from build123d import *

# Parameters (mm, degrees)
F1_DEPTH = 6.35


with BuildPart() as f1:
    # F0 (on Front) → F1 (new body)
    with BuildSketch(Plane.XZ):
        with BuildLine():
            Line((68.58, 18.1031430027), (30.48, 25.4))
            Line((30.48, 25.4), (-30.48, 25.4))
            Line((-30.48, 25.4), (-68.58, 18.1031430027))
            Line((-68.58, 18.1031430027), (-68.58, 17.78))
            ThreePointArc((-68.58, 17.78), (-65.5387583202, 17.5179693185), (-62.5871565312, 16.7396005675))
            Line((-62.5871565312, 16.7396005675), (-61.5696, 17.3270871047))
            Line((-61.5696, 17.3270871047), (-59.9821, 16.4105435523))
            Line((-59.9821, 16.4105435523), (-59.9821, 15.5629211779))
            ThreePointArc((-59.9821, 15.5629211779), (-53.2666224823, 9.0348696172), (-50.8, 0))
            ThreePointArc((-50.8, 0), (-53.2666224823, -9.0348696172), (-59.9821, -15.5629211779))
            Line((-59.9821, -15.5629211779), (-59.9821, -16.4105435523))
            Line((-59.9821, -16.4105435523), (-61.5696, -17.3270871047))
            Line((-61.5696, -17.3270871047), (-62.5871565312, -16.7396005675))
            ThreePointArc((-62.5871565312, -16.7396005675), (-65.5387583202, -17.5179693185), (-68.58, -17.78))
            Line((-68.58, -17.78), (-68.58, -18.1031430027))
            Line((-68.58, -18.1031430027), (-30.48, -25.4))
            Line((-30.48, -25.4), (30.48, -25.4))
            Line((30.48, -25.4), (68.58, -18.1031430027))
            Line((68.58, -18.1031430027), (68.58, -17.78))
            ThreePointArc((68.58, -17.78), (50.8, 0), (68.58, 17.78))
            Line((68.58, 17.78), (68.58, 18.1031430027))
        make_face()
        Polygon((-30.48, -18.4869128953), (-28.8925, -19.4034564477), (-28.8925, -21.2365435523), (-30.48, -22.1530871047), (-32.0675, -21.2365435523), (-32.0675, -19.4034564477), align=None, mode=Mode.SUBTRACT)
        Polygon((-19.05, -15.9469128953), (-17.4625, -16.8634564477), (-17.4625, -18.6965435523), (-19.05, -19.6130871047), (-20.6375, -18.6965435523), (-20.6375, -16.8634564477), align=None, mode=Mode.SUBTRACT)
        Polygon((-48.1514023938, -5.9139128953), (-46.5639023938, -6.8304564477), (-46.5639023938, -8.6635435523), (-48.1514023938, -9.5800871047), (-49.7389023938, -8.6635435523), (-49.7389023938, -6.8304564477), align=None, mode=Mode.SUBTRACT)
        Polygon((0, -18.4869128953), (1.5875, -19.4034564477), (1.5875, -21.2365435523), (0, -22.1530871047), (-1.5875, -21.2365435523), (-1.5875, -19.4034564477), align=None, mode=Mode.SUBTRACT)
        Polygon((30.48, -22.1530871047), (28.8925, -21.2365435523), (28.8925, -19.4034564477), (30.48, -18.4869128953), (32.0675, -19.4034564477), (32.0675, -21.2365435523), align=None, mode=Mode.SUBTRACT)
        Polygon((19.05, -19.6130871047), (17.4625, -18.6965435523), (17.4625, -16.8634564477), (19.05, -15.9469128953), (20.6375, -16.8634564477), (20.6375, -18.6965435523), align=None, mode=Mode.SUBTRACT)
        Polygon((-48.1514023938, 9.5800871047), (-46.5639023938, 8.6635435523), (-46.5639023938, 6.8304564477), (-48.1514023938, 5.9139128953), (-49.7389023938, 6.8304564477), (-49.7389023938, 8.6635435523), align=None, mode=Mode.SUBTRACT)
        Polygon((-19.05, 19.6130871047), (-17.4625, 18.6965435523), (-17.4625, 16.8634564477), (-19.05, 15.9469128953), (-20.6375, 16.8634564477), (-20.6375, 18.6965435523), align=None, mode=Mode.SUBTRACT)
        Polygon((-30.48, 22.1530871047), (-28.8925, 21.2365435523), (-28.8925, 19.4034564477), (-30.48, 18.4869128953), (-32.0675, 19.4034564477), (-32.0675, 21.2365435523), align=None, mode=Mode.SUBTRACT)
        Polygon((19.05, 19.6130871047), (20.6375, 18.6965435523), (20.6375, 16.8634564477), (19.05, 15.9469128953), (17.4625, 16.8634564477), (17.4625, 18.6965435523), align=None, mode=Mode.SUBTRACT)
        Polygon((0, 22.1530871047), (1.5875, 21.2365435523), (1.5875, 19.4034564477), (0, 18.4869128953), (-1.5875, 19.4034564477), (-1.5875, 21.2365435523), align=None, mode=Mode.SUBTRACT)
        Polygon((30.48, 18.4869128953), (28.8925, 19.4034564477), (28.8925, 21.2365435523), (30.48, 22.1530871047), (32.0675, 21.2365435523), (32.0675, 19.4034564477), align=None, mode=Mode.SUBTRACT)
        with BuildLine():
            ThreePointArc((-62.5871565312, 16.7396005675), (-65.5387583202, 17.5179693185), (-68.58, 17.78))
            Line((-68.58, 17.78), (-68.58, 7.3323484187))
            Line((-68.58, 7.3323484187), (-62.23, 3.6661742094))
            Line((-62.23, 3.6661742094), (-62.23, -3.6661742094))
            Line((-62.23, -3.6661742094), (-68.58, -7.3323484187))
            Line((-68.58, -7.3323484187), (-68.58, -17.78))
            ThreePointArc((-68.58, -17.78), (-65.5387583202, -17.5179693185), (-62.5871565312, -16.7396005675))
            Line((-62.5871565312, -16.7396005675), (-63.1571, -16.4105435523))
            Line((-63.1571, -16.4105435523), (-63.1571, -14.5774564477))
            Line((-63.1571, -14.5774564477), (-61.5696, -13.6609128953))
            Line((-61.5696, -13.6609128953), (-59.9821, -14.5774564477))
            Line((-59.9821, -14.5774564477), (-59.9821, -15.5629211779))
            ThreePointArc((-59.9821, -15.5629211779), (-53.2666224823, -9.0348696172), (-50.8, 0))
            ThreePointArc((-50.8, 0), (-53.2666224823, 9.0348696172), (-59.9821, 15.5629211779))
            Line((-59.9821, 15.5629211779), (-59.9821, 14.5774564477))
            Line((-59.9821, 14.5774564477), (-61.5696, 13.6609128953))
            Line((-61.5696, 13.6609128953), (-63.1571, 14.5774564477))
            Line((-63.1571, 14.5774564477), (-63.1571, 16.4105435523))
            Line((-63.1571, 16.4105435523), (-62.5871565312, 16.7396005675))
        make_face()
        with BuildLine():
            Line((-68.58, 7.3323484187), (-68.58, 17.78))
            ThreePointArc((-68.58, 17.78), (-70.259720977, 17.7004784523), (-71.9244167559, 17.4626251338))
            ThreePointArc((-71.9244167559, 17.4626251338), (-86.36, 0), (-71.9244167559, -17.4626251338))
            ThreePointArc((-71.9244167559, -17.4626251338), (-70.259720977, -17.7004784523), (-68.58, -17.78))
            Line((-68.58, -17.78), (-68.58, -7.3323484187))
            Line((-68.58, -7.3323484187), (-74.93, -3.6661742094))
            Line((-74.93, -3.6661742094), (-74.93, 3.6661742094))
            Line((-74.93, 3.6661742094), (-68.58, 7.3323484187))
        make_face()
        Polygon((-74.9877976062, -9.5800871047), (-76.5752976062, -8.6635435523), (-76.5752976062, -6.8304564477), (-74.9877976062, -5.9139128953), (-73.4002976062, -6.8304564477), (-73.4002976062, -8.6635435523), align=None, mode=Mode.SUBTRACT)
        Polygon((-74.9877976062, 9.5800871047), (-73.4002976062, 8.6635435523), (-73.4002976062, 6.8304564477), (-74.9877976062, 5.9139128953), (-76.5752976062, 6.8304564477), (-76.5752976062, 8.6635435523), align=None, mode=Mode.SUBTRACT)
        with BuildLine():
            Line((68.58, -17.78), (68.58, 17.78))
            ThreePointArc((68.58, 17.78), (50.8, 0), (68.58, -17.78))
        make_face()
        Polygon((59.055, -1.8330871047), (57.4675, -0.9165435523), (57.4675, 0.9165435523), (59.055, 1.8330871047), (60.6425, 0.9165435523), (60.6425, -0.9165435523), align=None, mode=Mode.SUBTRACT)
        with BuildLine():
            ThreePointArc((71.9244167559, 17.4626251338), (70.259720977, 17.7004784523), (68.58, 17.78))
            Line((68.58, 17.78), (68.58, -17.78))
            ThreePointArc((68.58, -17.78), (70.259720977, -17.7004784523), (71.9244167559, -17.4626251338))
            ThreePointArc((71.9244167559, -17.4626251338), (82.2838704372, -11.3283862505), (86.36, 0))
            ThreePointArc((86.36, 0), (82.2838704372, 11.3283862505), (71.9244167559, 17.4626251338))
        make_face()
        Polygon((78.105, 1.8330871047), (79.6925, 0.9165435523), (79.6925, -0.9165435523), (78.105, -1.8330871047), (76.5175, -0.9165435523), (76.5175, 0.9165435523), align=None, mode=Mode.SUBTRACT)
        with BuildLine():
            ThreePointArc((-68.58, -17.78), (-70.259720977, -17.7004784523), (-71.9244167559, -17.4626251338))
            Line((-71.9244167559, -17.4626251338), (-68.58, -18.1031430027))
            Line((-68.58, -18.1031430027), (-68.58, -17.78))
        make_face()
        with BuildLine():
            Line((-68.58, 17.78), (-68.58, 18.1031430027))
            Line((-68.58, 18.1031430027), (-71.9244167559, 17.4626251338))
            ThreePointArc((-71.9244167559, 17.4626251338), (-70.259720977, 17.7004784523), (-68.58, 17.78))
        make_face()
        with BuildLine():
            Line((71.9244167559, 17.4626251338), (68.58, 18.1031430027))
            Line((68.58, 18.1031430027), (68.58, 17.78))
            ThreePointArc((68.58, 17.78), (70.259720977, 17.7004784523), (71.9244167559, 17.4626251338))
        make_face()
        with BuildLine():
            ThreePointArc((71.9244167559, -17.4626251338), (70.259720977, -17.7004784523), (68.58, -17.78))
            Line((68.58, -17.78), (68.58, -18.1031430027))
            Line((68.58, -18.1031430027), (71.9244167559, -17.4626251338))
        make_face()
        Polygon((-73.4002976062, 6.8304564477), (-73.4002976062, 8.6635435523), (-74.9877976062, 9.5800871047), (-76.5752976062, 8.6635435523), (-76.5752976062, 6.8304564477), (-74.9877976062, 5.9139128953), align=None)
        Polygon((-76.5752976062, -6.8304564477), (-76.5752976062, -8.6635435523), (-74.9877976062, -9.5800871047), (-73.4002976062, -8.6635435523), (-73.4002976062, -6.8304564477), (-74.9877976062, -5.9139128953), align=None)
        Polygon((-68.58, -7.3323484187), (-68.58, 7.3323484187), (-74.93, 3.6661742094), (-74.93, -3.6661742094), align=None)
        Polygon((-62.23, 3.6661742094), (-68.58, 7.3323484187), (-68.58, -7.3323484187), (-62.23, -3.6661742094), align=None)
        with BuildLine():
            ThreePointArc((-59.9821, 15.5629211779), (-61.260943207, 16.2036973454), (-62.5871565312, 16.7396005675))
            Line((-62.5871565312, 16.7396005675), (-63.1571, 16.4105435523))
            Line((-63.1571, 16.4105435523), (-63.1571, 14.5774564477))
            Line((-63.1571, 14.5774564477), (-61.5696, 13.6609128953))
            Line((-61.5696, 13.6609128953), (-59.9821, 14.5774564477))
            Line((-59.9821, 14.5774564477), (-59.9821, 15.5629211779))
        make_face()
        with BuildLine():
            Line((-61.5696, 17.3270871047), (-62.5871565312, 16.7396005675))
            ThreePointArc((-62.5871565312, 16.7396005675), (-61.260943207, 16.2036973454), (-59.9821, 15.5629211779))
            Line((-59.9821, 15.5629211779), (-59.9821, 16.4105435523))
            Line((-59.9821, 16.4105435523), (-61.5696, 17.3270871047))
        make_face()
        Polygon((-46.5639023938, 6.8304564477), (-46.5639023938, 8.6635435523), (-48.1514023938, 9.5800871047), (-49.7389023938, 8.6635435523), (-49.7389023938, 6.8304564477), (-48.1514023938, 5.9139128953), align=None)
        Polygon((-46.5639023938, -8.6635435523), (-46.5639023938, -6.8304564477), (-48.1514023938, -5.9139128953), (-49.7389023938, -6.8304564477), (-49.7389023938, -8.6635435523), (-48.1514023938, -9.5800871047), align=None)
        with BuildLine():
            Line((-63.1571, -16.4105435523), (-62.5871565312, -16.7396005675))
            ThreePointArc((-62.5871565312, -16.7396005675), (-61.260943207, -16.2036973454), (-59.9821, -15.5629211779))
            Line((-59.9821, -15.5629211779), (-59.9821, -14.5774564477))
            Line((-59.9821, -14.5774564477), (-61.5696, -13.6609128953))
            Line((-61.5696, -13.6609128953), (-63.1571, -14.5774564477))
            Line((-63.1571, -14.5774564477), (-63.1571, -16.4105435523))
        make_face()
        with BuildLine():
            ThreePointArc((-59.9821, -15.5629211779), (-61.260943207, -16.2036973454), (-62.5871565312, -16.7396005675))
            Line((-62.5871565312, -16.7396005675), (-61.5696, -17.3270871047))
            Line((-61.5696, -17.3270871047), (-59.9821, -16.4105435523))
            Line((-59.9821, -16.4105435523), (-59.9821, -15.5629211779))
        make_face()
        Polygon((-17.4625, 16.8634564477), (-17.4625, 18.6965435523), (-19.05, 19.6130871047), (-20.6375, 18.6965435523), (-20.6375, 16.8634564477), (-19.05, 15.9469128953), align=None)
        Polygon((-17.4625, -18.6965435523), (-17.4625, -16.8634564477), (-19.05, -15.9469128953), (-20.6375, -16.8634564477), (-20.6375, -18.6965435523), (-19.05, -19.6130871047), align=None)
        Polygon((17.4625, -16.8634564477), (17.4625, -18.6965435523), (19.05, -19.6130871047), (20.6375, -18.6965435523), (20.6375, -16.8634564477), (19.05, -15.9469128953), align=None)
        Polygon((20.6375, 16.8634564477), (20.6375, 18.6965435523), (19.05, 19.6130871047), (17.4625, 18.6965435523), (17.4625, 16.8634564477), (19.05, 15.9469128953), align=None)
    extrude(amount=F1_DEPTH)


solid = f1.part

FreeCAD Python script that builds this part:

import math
import FreeCAD as App
import Part
import Sketcher
from FreeCAD import Vector
Q = App.Units.Quantity

doc = App.newDocument("Part")
body = doc.addObject("PartDesign::Body", "Body")

sketch1 = body.newObject("Sketcher::SketchObject", "Sketch")
sketch1.AttachmentSupport = (doc.getObject("XZ_Plane"), [""])
sketch1.MapMode = "FlatFace"
sketch1.addGeometry([
    Part.LineSegment(Vector(68.58, 18.103143, 0), Vector(30.48, 25.4, 0)),
    Part.LineSegment(Vector(30.48, 25.4, 0), Vector(-30.48, 25.4, 0)),
    Part.LineSegment(Vector(-30.48, 25.4, 0), Vector(-68.58, 18.103143, 0)),
    Part.LineSegment(Vector(-68.58, 18.103143, 0), Vector(-71.924417, 17.462625, 0)),
    Part.ArcOfCircle(Part.Circle(Vector(-68.58, 0, 0), Vector(0, 0, 1), 17.78), math.radians(100.841919), math.radians(259.158081)),
    Part.LineSegment(Vector(-71.924417, -17.462625, 0), Vector(-68.58, -18.103143, 0)),
    Part.LineSegment(Vector(-68.58, -18.103143, 0), Vector(-30.48, -25.4, 0)),
    Part.LineSegment(Vector(-30.48, -25.4, 0), Vector(30.48, -25.4, 0)),
    Part.LineSegment(Vector(30.48, -25.4, 0), Vector(68.58, -18.103143, 0)),
    Part.LineSegment(Vector(68.58, -18.103143, 0), Vector(71.924417, -17.462625, 0)),
    Part.ArcOfCircle(Part.Circle(Vector(68.58, 0, 0), Vector(0, 0, 1), 17.78), math.radians(-79.158081), math.radians(0)),
    Part.ArcOfCircle(Part.Circle(Vector(68.58, 0, 0), Vector(0, 0, 1), 17.78), math.radians(0), math.radians(79.158081)),
    Part.LineSegment(Vector(71.924417, 17.462625, 0), Vector(68.58, 18.103143, 0)),
    Part.LineSegment(Vector(-32.0675, -19.403456, 0), Vector(-30.48, -18.486913, 0)),
    Part.LineSegment(Vector(-30.48, -18.486913, 0), Vector(-28.8925, -19.403456, 0)),
    Part.LineSegment(Vector(-28.8925, -19.403456, 0), Vector(-28.8925, -21.236544, 0)),
    Part.LineSegment(Vector(-28.8925, -21.236544, 0), Vector(-30.48, -22.153087, 0)),
    Part.LineSegment(Vector(-30.48, -22.153087, 0), Vector(-32.0675, -21.236544, 0)),
    Part.LineSegment(Vector(-32.0675, -21.236544, 0), Vector(-32.0675, -19.403456, 0)),
    Part.LineSegment(Vector(-1.5875, -19.403456, 0), Vector(0, -18.486913, 0)),
    Part.LineSegment(Vector(0, -18.486913, 0), Vector(1.5875, -19.403456, 0)),
    Part.LineSegment(Vector(1.5875, -19.403456, 0), Vector(1.5875, -21.236544, 0)),
    Part.LineSegment(Vector(1.5875, -21.236544, 0), Vector(0, -22.153087, 0)),
    Part.LineSegment(Vector(0, -22.153087, 0), Vector(-1.5875, -21.236544, 0)),
    Part.LineSegment(Vector(-1.5875, -21.236544, 0), Vector(-1.5875, -19.403456, 0)),
    Part.LineSegment(Vector(32.0675, -21.236544, 0), Vector(30.48, -22.153087, 0)),
    Part.LineSegment(Vector(30.48, -22.153087, 0), Vector(28.8925, -21.236544, 0)),
    Part.LineSegment(Vector(28.8925, -21.236544, 0), Vector(28.8925, -19.403456, 0)),
    Part.LineSegment(Vector(28.8925, -19.403456, 0), Vector(30.48, -18.486913, 0)),
    Part.LineSegment(Vector(30.48, -18.486913, 0), Vector(32.0675, -19.403456, 0)),
    Part.LineSegment(Vector(32.0675, -19.403456, 0), Vector(32.0675, -21.236544, 0)),
    Part.LineSegment(Vector(-32.0675, 21.236544, 0), Vector(-30.48, 22.153087, 0)),
    Part.LineSegment(Vector(-30.48, 22.153087, 0), Vector(-28.8925, 21.236544, 0)),
    Part.LineSegment(Vector(-28.8925, 21.236544, 0), Vector(-28.8925, 19.403456, 0)),
    Part.LineSegment(Vector(-28.8925, 19.403456, 0), Vector(-30.48, 18.486913, 0)),
    Part.LineSegment(Vector(-30.48, 18.486913, 0), Vector(-32.0675, 19.403456, 0)),
    Part.LineSegment(Vector(-32.0675, 19.403456, 0), Vector(-32.0675, 21.236544, 0)),
    Part.LineSegment(Vector(-1.5875, 21.236544, 0), Vector(0, 22.153087, 0)),
    Part.LineSegment(Vector(0, 22.153087, 0), Vector(1.5875, 21.236544, 0)),
    Part.LineSegment(Vector(1.5875, 21.236544, 0), Vector(1.5875, 19.403456, 0)),
    Part.LineSegment(Vector(1.5875, 19.403456, 0), Vector(0, 18.486913, 0)),
    Part.LineSegment(Vector(0, 18.486913, 0), Vector(-1.5875, 19.403456, 0)),
    Part.LineSegment(Vector(-1.5875, 19.403456, 0), Vector(-1.5875, 21.236544, 0)),
    Part.LineSegment(Vector(60.6425, -0.916544, 0), Vector(59.055, -1.833087, 0)),
    Part.LineSegment(Vector(59.055, -1.833087, 0), Vector(57.4675, -0.916544, 0)),
    Part.LineSegment(Vector(57.4675, -0.916544, 0), Vector(57.4675, 0.916544, 0)),
    Part.LineSegment(Vector(57.4675, 0.916544, 0), Vector(59.055, 1.833087, 0)),
    Part.LineSegment(Vector(59.055, 1.833087, 0), Vector(60.6425, 0.916544, 0)),
    Part.LineSegment(Vector(60.6425, 0.916544, 0), Vector(60.6425, -0.916544, 0)),
    Part.LineSegment(Vector(76.5175, 0.916544, 0), Vector(78.105, 1.833087, 0)),
    Part.LineSegment(Vector(78.105, 1.833087, 0), Vector(79.6925, 0.916544, 0)),
    Part.LineSegment(Vector(79.6925, 0.916544, 0), Vector(79.6925, -0.916544, 0)),
    Part.LineSegment(Vector(79.6925, -0.916544, 0), Vector(78.105, -1.833087, 0)),
    Part.LineSegment(Vector(78.105, -1.833087, 0), Vector(76.5175, -0.916544, 0)),
    Part.LineSegment(Vector(76.5175, -0.916544, 0), Vector(76.5175, 0.916544, 0)),
    Part.LineSegment(Vector(32.0675, 19.403456, 0), Vector(30.48, 18.486913, 0)),
    Part.LineSegment(Vector(30.48, 18.486913, 0), Vector(28.8925, 19.403456, 0)),
    Part.LineSegment(Vector(28.8925, 19.403456, 0), Vector(28.8925, 21.236544, 0)),
    Part.LineSegment(Vector(28.8925, 21.236544, 0), Vector(30.48, 22.153087, 0)),
    Part.LineSegment(Vector(30.48, 22.153087, 0), Vector(32.0675, 21.236544, 0)),
    Part.LineSegment(Vector(32.0675, 21.236544, 0), Vector(32.0675, 19.403456, 0)),
], False)
sketch1.addConstraint([
    Sketcher.Constraint("Coincident", 0, 2, 1, 1),
    Sketcher.Constraint("Coincident", 1, 2, 2, 1),
    Sketcher.Constraint("Coincident", 2, 2, 3, 1),
    Sketcher.Constraint("Tangent", 3, 2, 4, 1),
    Sketcher.Constraint("Tangent", 4, 2, 5, 1),
    Sketcher.Constraint("Coincident", 5, 2, 6, 1),
    Sketcher.Constraint("Coincident", 6, 2, 7, 1),
    Sketcher.Constraint("Coincident", 7, 2, 8, 1),
    Sketcher.Constraint("Coincident", 8, 2, 9, 1),
    Sketcher.Constraint("Tangent", 9, 2, 10, 1),
    Sketcher.Constraint("Tangent", 10, 2, 11, 1),
    Sketcher.Constraint("Tangent", 11, 2, 12, 1),
    Sketcher.Constraint("Coincident", 12, 2, 0, 1),
    Sketcher.Constraint("Coincident", 13, 2, 14, 1),
    Sketcher.Constraint("Coincident", 14, 2, 15, 1),
    Sketcher.Constraint("Coincident", 15, 2, 16, 1),
    Sketcher.Constraint("Coincident", 16, 2, 17, 1),
    Sketcher.Constraint("Coincident", 17, 2, 18, 1),
    Sketcher.Constraint("Coincident", 18, 2, 13, 1),
    Sketcher.Constraint("Coincident", 19, 2, 20, 1),
    Sketcher.Constraint("Coincident", 20, 2, 21, 1),
    Sketcher.Constraint("Coincident", 21, 2, 22, 1),
    Sketcher.Constraint("Coincident", 22, 2, 23, 1),
    Sketcher.Constraint("Coincident", 23, 2, 24, 1),
    Sketcher.Constraint("Coincident", 24, 2, 19, 1),
    Sketcher.Constraint("Coincident", 25, 2, 26, 1),
    Sketcher.Constraint("Coincident", 26, 2, 27, 1),
    Sketcher.Constraint("Coincident", 27, 2, 28, 1),
    Sketcher.Constraint("Coincident", 28, 2, 29, 1),
    Sketcher.Constraint("Coincident", 29, 2, 30, 1),
    Sketcher.Constraint("Coincident", 30, 2, 25, 1),
    Sketcher.Constraint("Coincident", 31, 2, 32, 1),
    Sketcher.Constraint("Coincident", 32, 2, 33, 1),
    Sketcher.Constraint("Coincident", 33, 2, 34, 1),
    Sketcher.Constraint("Coincident", 34, 2, 35, 1),
    Sketcher.Constraint("Coincident", 35, 2, 36, 1),
    Sketcher.Constraint("Coincident", 36, 2, 31, 1),
    Sketcher.Constraint("Coincident", 37, 2, 38, 1),
    Sketcher.Constraint("Coincident", 38, 2, 39, 1),
    Sketcher.Constraint("Coincident", 39, 2, 40, 1),
    Sketcher.Constraint("Coincident", 40, 2, 41, 1),
    Sketcher.Constraint("Coincident", 41, 2, 42, 1),
    Sketcher.Constraint("Coincident", 42, 2, 37, 1),
    Sketcher.Constraint("Coincident", 43, 2, 44, 1),
    Sketcher.Constraint("Coincident", 44, 2, 45, 1),
    Sketcher.Constraint("Coincident", 45, 2, 46, 1),
    Sketcher.Constraint("Coincident", 46, 2, 47, 1),
    Sketcher.Constraint("Coincident", 47, 2, 48, 1),
    Sketcher.Constraint("Coincident", 48, 2, 43, 1),
    Sketcher.Constraint("Coincident", 49, 2, 50, 1),
    Sketcher.Constraint("Coincident", 50, 2, 51, 1),
    Sketcher.Constraint("Coincident", 51, 2, 52, 1),
    Sketcher.Constraint("Coincident", 52, 2, 53, 1),
    Sketcher.Constraint("Coincident", 53, 2, 54, 1),
    Sketcher.Constraint("Coincident", 54, 2, 49, 1),
    Sketcher.Constraint("Coincident", 55, 2, 56, 1),
    Sketcher.Constraint("Coincident", 56, 2, 57, 1),
    Sketcher.Constraint("Coincident", 57, 2, 58, 1),
    Sketcher.Constraint("Coincident", 58, 2, 59, 1),
    Sketcher.Constraint("Coincident", 59, 2, 60, 1),
    Sketcher.Constraint("Coincident", 60, 2, 55, 1),
    Sketcher.Constraint("Horizontal", 1),
    Sketcher.Constraint("Horizontal", 7),
    Sketcher.Constraint("Vertical", 15),
    Sketcher.Constraint("Vertical", 18),
    Sketcher.Constraint("Vertical", 21),
    Sketcher.Constraint("Vertical", 24),
    Sketcher.Constraint("Vertical", 27),
    Sketcher.Constraint("Vertical", 30),
    Sketcher.Constraint("Vertical", 33),
    Sketcher.Constraint("Vertical", 36),
    Sketcher.Constraint("Vertical", 39),
    Sketcher.Constraint("Vertical", 42),
    Sketcher.Constraint("Vertical", 45),
    Sketcher.Constraint("Vertical", 48),
    Sketcher.Constraint("Vertical", 51),
    Sketcher.Constraint("Vertical", 54),
    Sketcher.Constraint("Vertical", 57),
    Sketcher.Constraint("Vertical", 60),
    Sketcher.Constraint("Equal", 4, 10),
    Sketcher.Constraint("Equal", 10, 11),
    Sketcher.Constraint("Symmetric", 4, 3, 10, 3, -1, 1),
    Sketcher.Constraint("Symmetric", 0, 2, 6, 2, -1, 1),
    Sketcher.Constraint("Symmetric", 2, 2, 8, 2, -1, 1),
    Sketcher.Constraint("Symmetric", 5, 2, 12, 2, -1, 1),
    Sketcher.Constraint("Symmetric", 25, 2, 31, 2, -1, 1),
    Sketcher.Constraint("Symmetric", 26, 2, 32, 2, -1, 1),
    Sketcher.Constraint("Symmetric", 28, 2, 34, 2, -1, 1),
    Sketcher.Constraint("Symmetric", 29, 2, 35, 2, -1, 1),
    Sketcher.Constraint("Symmetric", 22, 2, 37, 2, -1, 1),
    Sketcher.Constraint("Symmetric", 23, 2, 38, 2, -1, 1),
    Sketcher.Constraint("Symmetric", 19, 2, 40, 2, -1, 1),
    Sketcher.Constraint("Symmetric", 20, 2, 41, 2, -1, 1),
    Sketcher.Constraint("Symmetric", 13, 2, 55, 2, -1, 1),
    Sketcher.Constraint("Symmetric", 14, 2, 56, 2, -1, 1),
    Sketcher.Constraint("Symmetric", 16, 2, 58, 2, -1, 1),
    Sketcher.Constraint("Symmetric", 17, 2, 59, 2, -1, 1),
    Sketcher.Constraint("Symmetric", 5, 2, 8, 2, -2),
    Sketcher.Constraint("Symmetric", 21, 2, 23, 2, -2),
    Sketcher.Constraint("Symmetric", 16, 2, 25, 2, -2),
    Sketcher.Constraint("Symmetric", 15, 2, 26, 2, -2),
    Sketcher.Constraint("Symmetric", 13, 2, 28, 2, -2),
    Sketcher.Constraint("Symmetric", 18, 2, 29, 2, -2),
    Sketcher.Constraint("Symmetric", 43, 2, 46, 2, -1),
    Sketcher.Constraint("Symmetric", 49, 2, 52, 2, -1),
    Sketcher.Constraint("PointOnObject", 4, 3, -1),
    Sketcher.Constraint("PointOnObject", 10, 2, -1),
    Sketcher.Constraint("PointOnObject", 19, 2, -2),
    Sketcher.Constraint("PointOnObject", 22, 2, -2),
    Sketcher.Constraint("Parallel", 2, 3),
    Sketcher.Constraint("Parallel", 0, 5),
    Sketcher.Constraint("Parallel", 3, 8),
    Sketcher.Constraint("Parallel", 13, 16),
    Sketcher.Constraint("Parallel", 14, 17),
    Sketcher.Constraint("Parallel", 16, 19),
    Sketcher.Constraint("Parallel", 17, 20),
    Sketcher.Constraint("Parallel", 19, 22),
    Sketcher.Constraint("Parallel", 20, 23),
    Sketcher.Constraint("Parallel", 22, 25),
    Sketcher.Constraint("Parallel", 25, 28),
    Sketcher.Constraint("Parallel", 28, 31),
    Sketcher.Constraint("Parallel", 31, 34),
    Sketcher.Constraint("Parallel", 34, 37),
    Sketcher.Constraint("Parallel", 37, 40),
    Sketcher.Constraint("Parallel", 40, 43),
    Sketcher.Constraint("Parallel", 41, 44),
    Sketcher.Constraint("Parallel", 43, 46),
    Sketcher.Constraint("Parallel", 44, 47),
    Sketcher.Constraint("Parallel", 46, 49),
    Sketcher.Constraint("Parallel", 47, 50),
    Sketcher.Constraint("Parallel", 49, 52),
    Sketcher.Constraint("Parallel", 50, 53),
    Sketcher.Constraint("Parallel", 52, 55),
    Sketcher.Constraint("Parallel", 55, 58),
    Sketcher.Constraint("Horizontal", 15, 2, 17, 2),
    Sketcher.Constraint("Horizontal", 14, 2, 18, 2),
    Sketcher.Constraint("Horizontal", 13, 2, 19, 2),
    Sketcher.Constraint("Horizontal", 18, 2, 20, 2),
    Sketcher.Constraint("Horizontal", 17, 2, 21, 2),
    Sketcher.Constraint("Horizontal", 45, 2, 47, 2),
    Sketcher.Constraint("Horizontal", 46, 2, 49, 2),
    Sketcher.Constraint("Horizontal", 47, 2, 50, 2),
    Sketcher.Constraint("Horizontal", 51, 2, 53, 2),
    Sketcher.Constraint("Vertical", 4, 3, 2, 2),
    Sketcher.Constraint("Vertical", 6, 2, 13, 2),
    Sketcher.Constraint("Equal", 42, 45),
    Sketcher.Constraint("Equal", 41, 43),
    Sketcher.Constraint("Radius", 4, Q("0.7 in")),
    Sketcher.Constraint("DistanceX", 1, 2, 1, 1, Q("2.4 in")),
    Sketcher.Constraint("DistanceY", -1, 1, 0, 2, Q("1 in")),
    Sketcher.Constraint("Angle", 13, Q("30 deg")),
    Sketcher.Constraint("DistanceX", 4, 3, -1, 1, Q("2.7 in")),
    Sketcher.Constraint("DistanceX", -1, 1, 20, 2, Q("0.0625 in")),
    Sketcher.Constraint("DistanceX", -1, 1, 43, 2, Q("2.325 in")),
    Sketcher.Constraint("DistanceX", -1, 1, 49, 2, Q("3.075 in")),
    Sketcher.Constraint("DistanceY", 15, 2, 15, 1, Q("1.833087 mm")),
    Sketcher.Constraint("DistanceY", 13, 2, -1, 1, Q("18.486913 mm")),
])
pad1 = body.newObject("PartDesign::Pad", "Pad")
pad1.Profile = sketch1
pad1.Length = Q("0.25 in")

doc.recompute()
